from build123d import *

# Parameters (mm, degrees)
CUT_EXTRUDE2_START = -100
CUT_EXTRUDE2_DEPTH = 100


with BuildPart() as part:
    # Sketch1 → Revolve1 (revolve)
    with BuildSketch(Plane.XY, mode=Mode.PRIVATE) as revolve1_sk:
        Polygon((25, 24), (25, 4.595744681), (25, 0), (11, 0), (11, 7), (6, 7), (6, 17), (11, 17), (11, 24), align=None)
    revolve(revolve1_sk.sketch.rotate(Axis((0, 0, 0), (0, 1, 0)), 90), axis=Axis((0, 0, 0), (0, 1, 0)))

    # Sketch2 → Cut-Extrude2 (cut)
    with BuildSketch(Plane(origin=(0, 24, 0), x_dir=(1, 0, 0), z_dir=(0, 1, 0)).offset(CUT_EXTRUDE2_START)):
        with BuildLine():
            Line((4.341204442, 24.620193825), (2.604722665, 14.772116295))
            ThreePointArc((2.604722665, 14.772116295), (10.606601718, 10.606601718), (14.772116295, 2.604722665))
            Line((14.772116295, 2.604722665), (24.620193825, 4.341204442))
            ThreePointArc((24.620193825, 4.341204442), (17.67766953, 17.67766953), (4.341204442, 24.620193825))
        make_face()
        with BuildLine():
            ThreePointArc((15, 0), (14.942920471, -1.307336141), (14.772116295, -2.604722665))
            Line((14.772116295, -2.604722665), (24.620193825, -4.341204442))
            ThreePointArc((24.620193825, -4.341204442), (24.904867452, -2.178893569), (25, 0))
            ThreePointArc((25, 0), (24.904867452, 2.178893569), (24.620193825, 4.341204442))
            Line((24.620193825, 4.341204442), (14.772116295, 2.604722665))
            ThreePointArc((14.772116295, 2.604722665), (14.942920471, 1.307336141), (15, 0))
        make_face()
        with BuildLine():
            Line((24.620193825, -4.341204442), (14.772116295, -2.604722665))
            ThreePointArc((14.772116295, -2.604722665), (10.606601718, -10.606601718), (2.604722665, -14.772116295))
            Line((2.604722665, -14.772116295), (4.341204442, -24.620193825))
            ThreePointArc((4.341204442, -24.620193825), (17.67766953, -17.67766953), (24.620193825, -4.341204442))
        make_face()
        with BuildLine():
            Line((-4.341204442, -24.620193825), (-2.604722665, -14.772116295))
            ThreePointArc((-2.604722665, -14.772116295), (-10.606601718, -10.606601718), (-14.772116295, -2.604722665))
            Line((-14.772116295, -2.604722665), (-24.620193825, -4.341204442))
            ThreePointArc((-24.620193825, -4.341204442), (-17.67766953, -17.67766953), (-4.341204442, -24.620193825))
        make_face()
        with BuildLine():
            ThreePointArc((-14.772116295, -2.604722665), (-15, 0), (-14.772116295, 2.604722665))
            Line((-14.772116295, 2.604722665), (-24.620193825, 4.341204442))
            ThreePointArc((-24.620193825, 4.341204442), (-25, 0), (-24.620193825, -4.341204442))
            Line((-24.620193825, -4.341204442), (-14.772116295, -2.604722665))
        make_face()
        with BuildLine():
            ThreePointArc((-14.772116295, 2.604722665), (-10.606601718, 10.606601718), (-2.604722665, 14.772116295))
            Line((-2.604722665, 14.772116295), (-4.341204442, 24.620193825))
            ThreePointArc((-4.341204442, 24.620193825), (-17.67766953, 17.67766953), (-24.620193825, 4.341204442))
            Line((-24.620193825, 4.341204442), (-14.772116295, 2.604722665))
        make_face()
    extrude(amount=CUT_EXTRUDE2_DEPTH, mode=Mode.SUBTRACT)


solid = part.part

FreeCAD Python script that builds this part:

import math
import FreeCAD as App
import Part
import Sketcher

V = App.Vector
Q = App.Units.Quantity

doc = App.newDocument("Part")
body = doc.addObject("PartDesign::Body", "Body")

# Sketch on XY plane
sketch1 = doc.addObject("Sketcher::SketchObject", "Sketch")
body.addObject(sketch1)
sketch1.AttachmentSupport = (doc.XY_Plane, [""])
sketch1.MapMode = "FlatFace"
sketch1.addGeometry([
    Part.LineSegment(V(25, 0, 0), V(25, 24, 0)),  # 0
    Part.LineSegment(V(25, 24, 0), V(11, 24, 0)),  # 1
    Part.LineSegment(V(11, 24, 0), V(11, 17, 0)),  # 2
    Part.LineSegment(V(11, 17, 0), V(6, 17, 0)),  # 3
    Part.LineSegment(V(6, 17, 0), V(6, 7, 0)),  # 4
    Part.LineSegment(V(6, 7, 0), V(11, 7, 0)),  # 5
    Part.LineSegment(V(11, 7, 0), V(11, 0, 0)),  # 6
    Part.LineSegment(V(11, 0, 0), V(25, 0, 0)),  # 7
], False)
sketch1.addConstraint([
    Sketcher.Constraint("Coincident", 0, 2, 1, 1),
    Sketcher.Constraint("Coincident", 1, 2, 2, 1),
    Sketcher.Constraint("Coincident", 2, 2, 3, 1),
    Sketcher.Constraint("Coincident", 3, 2, 4, 1),
    Sketcher.Constraint("Coincident", 4, 2, 5, 1),
    Sketcher.Constraint("Coincident", 5, 2, 6, 1),
    Sketcher.Constraint("Coincident", 6, 2, 7, 1),
    Sketcher.Constraint("Coincident", 7, 2, 0, 1),
    Sketcher.Constraint("Vertical", 0),
    Sketcher.Constraint("Horizontal", 1),
    Sketcher.Constraint("Vertical", 2),
    Sketcher.Constraint("Horizontal", 3),
    Sketcher.Constraint("Vertical", 4),
    Sketcher.Constraint("Horizontal", 5),
    Sketcher.Constraint("Vertical", 6),
    Sketcher.Constraint("Horizontal", 7),
    Sketcher.Constraint("PointOnObject", 6, 2, -1),
    Sketcher.Constraint("Vertical", 2, 2, 5, 2),
    Sketcher.Constraint("Equal", 2, 6),
    Sketcher.Constraint("DistanceX", 1, 2, 1, 1, 14.0),
    Sketcher.Constraint("DistanceX", 3, 2, 3, 1, 5.0),
    Sketcher.Constraint("DistanceY", 0, 1, 0, 2, 24.0),
    Sketcher.Constraint("DistanceY", 2, 2, 2, 1, 7.0),
    Sketcher.Constraint("DistanceX", -1, 1, 0, 2, 25.0),
])
revolution = doc.addObject("PartDesign::Revolution", "Revolution")
body.addObject(revolution)
revolution.Profile = sketch1
revolution.ReferenceAxis = (sketch1, ["V_Axis"])
revolution.Angle = 360

# Sketch on XZ plane
sketch2 = doc.addObject("Sketcher::SketchObject", "Sketch001")
body.addObject(sketch2)
sketch2.AttachmentSupport = (doc.XZ_Plane, [""])
sketch2.MapMode = "FlatFace"
sketch2.AttachmentOffset = App.Placement(V(0, 0, 76), App.Rotation())
sketch2.addGeometry([
    Part.LineSegment(V(4.3, -24.6, 0), V(2.6, -14.8, 0)),  # 0
    Part.ArcOfCircle(Part.Circle(V(0, 0, 0), V(0, 0, 1), 15), math.radians(-80), math.radians(-10)),  # 1
    Part.ArcOfCircle(Part.Circle(V(0, 0, 0), V(0, 0, 1), 15), math.radians(-10), math.radians(0)),  # 2
    Part.ArcOfCircle(Part.Circle(V(0, 0, 0), V(0, 0, 1), 15), math.radians(0), math.radians(10)),  # 3
    Part.ArcOfCircle(Part.Circle(V(0, 0, 0), V(0, 0, 1), 15), math.radians(10), math.radians(80)),  # 4
    Part.LineSegment(V(2.6, 14.8, 0), V(4.3, 24.6, 0)),  # 5
    Part.ArcOfCircle(Part.Circle(V(0, 0, 0), V(0, 0, 1), 25), math.radians(10), math.radians(80)),  # 6
    Part.ArcOfCircle(Part.Circle(V(0, 0, 0), V(0, 0, 1), 25), math.radians(0), math.radians(10)),  # 7
    Part.ArcOfCircle(Part.Circle(V(0, 0, 0), V(0, 0, 1), 25), math.radians(-10), math.radians(0)),  # 8
    Part.ArcOfCircle(Part.Circle(V(0, 0, 0), V(0, 0, 1), 25), math.radians(-80), math.radians(-10)),  # 9
    Part.LineSegment(V(-4.3, 24.6, 0), V(-2.6, 14.8, 0)),  # 10
    Part.ArcOfCircle(Part.Circle(V(0, 0, 0), V(0, 0, 1), 15), math.radians(100), math.radians(170)),  # 11
    Part.ArcOfCircle(Part.Circle(V(0, 0, 0), V(0, 0, 1), 15), math.radians(170), math.radians(190)),  # 12
    Part.ArcOfCircle(Part.Circle(V(0, 0, 0), V(0, 0, 1), 15), math.radians(-170), math.radians(-100)),  # 13
    Part.LineSegment(V(-2.6, -14.8, 0), V(-4.3, -24.6, 0)),  # 14
    Part.ArcOfCircle(Part.Circle(V(0, 0, 0), V(0, 0, 1), 25), math.radians(-170), math.radians(-100)),  # 15
    Part.ArcOfCircle(Part.Circle(V(0, 0, 0), V(0, 0, 1), 25), math.radians(170), math.radians(190)),  # 16
    Part.ArcOfCircle(Part.Circle(V(0, 0, 0), V(0, 0, 1), 25), math.radians(100), math.radians(170)),  # 17
], False)
sketch2.addConstraint([
    Sketcher.Constraint("Coincident", 0, 2, 1, 1),
    Sketcher.Constraint("Tangent", 1, 2, 2, 1),
    Sketcher.Constraint("Tangent", 2, 2, 3, 1),
    Sketcher.Constraint("Tangent", 3, 2, 4, 1),
    Sketcher.Constraint("Coincident", 4, 2, 5, 1),
    Sketcher.Constraint("Coincident", 5, 2, 6, 2),
    Sketcher.Constraint("Tangent", 6, 1, 7, 2),
    Sketcher.Constraint("Tangent", 7, 1, 8, 2),
    Sketcher.Constraint("Tangent", 8, 1, 9, 2),
    Sketcher.Constraint("Coincident", 9, 1, 0, 1),
    Sketcher.Constraint("Coincident", 10, 2, 11, 1),
    Sketcher.Constraint("Tangent", 11, 2, 12, 1),
    Sketcher.Constraint("Tangent", 12, 2, 13, 1),
    Sketcher.Constraint("Coincident", 13, 2, 14, 1),
    Sketcher.Constraint("Coincident", 14, 2, 15, 2),
    Sketcher.Constraint("Tangent", 15, 1, 16, 2),
    Sketcher.Constraint("Tangent", 16, 1, 17, 2),
    Sketcher.Constraint("Coincident", 17, 1, 10, 1),
    Sketcher.Constraint("Coincident", 1, 3, -1, 1),
    Sketcher.Constraint("Coincident", 3, 3, -1, 1),
    Sketcher.Constraint("Coincident", 6, 3, -1, 1),
    Sketcher.Constraint("Coincident", 8, 3, -1, 1),
    Sketcher.Constraint("Coincident", 11, 3, -1, 1),
    Sketcher.Constraint("Coincident", 13, 3, -1, 1),
    Sketcher.Constraint("Coincident", 15, 3, -1, 1),
    Sketcher.Constraint("Coincident", 17, 3, -1, 1),
    Sketcher.Constraint("Equal", 3, 4),
    Sketcher.Constraint("Equal", 8, 9),
    Sketcher.Constraint("Equal", 4, 11),
    Sketcher.Constraint("Equal", 9, 15),
    Sketcher.Constraint("PointOnObject", 2, 2, -1),
    Sketcher.Constraint("PointOnObject", 7, 1, -1),
    Sketcher.Constraint("Parallel", 0, 10),
    Sketcher.Constraint("Parallel", 5, 14),
    Sketcher.Constraint("Horizontal", 4, 2, 10, 2),
    Sketcher.Constraint("Horizontal", 3, 2, 11, 2),
    Sketcher.Constraint("Horizontal", 1, 2, 12, 2),
    Sketcher.Constraint("Horizontal", 0, 2, 13, 2),
    Sketcher.Constraint("Horizontal", 9, 1, 14, 2),
    Sketcher.Constraint("Horizontal", 8, 1, 15, 1),
    Sketcher.Constraint("Horizontal", 6, 1, 16, 1),
    Sketcher.Constraint("Vertical", 1, 2, 3, 2),
    Sketcher.Constraint("Vertical", 0, 2, 4, 2),
    Sketcher.Constraint("Vertical", 6, 1, 8, 1),
    Sketcher.Constraint("Radius", 1, 15.0),
    Sketcher.Constraint("Radius", 6, 25.0),
    Sketcher.Constraint("Angle", 0, Q("100 deg")),
    Sketcher.Constraint("DistanceX", 5, 2, 3, 2, 10.430912),
    Sketcher.Constraint("DistanceY", 3, 2, 5, 2, 22.015471),
    Sketcher.Constraint("DistanceY", 3, 2, 6, 1, 1.736482),
])
pocket1 = doc.addObject("PartDesign::Pocket", "Pocket")
body.addObject(pocket1)
pocket1.Profile = sketch2
pocket1.Length = 100

doc.recompute()
